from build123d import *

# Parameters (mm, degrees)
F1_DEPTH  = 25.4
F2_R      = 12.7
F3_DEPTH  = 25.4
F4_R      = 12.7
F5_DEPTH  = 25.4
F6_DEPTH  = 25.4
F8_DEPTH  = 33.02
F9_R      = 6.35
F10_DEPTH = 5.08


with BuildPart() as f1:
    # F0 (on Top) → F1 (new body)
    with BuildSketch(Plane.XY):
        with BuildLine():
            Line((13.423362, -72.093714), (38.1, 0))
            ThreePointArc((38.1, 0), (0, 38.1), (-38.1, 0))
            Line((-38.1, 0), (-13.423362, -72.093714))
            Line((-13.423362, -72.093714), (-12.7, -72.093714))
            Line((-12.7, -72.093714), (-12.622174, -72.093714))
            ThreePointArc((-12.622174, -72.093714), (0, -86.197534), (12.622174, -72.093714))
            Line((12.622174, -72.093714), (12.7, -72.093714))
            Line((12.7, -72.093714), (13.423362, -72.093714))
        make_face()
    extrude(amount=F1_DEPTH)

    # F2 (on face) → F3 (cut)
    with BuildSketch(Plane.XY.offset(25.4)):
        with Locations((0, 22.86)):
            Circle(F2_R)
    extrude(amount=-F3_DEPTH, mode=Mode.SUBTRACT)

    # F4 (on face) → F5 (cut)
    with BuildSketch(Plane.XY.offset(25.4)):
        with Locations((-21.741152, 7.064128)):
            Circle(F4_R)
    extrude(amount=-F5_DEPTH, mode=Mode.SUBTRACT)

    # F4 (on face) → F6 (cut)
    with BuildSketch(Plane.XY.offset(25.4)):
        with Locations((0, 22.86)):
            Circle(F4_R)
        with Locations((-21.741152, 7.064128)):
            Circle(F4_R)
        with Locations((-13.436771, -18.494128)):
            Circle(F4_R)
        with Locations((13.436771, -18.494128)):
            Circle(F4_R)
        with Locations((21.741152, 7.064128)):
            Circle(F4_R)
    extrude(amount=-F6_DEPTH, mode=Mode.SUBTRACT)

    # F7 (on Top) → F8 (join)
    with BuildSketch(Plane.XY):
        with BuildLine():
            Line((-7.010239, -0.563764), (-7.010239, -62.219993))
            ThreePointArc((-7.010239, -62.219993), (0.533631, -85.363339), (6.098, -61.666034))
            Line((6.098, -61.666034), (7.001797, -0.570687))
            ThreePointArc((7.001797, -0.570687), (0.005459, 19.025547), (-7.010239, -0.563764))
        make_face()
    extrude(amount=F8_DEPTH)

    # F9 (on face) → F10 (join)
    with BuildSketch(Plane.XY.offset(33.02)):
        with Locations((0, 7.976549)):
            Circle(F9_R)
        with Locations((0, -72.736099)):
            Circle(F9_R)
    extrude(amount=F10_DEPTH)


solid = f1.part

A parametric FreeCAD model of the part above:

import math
import FreeCAD as App
import Part
import Sketcher

V = App.Vector
Q = App.Units.Quantity

doc = App.newDocument("Part")
body = doc.addObject("PartDesign::Body", "Body")

sketch1 = body.newObject("Sketcher::SketchObject", "Sketch")
sketch1.AttachmentSupport = (doc.getObject("XY_Plane"), [""])
sketch1.MapMode = "FlatFace"
sketch1.addGeometry([
    Part.LineSegment(V(13.4, -72.1, 0), V(38.1, 0, 0)),
    Part.ArcOfCircle(Part.Circle(V(0, 0, 0), V(0, 0, 1), 38.1), math.radians(0), math.radians(180)),
    Part.LineSegment(V(-38.1, 0, 0), V(-13.4, -72.1, 0)),
    Part.LineSegment(V(-13.4, -72.1, 0), V(-12.6, -72.1, 0)),
    Part.ArcOfCircle(Part.Circle(V(0, -73.5, 0), V(0, 0, 1), 12.7), math.radians(174), math.radians(366)),
    Part.LineSegment(V(12.6, -72.1, 0), V(13.4, -72.1, 0)),
], False)
sketch1.addConstraint([
    Sketcher.Constraint("Coincident", 0, 2, 1, 1),
    Sketcher.Constraint("Coincident", 1, 2, 2, 1),
    Sketcher.Constraint("Coincident", 2, 2, 3, 1),
    Sketcher.Constraint("Coincident", 3, 2, 4, 1),
    Sketcher.Constraint("Coincident", 4, 2, 5, 1),
    Sketcher.Constraint("Coincident", 5, 2, 0, 1),
    Sketcher.Constraint("Horizontal", 3),
    Sketcher.Constraint("Horizontal", 5),
    Sketcher.Constraint("Coincident", 1, 3, -1, 1),
    Sketcher.Constraint("Symmetric", 3, 2, 4, 2, -2),
    Sketcher.Constraint("PointOnObject", 0, 2, -1),
    Sketcher.Constraint("PointOnObject", 1, 2, -1),
    Sketcher.Constraint("Equal", 3, 5),
    Sketcher.Constraint("Radius", 1, Q("1.5 in")),
    Sketcher.Constraint("Radius", 4, Q("0.5 in")),
    Sketcher.Constraint("Distance", 0, Q("3 in")),
    Sketcher.Constraint("DistanceX", 3, 1, 3, 2, Q("0.801188 mm")),
    Sketcher.Constraint("DistanceX", 2, 2, -1, 1, Q("13.423362 mm")),
])
pad1 = body.newObject("PartDesign::Pad", "Pad")
pad1.Profile = sketch1
pad1.Length = Q("1 in")

sketch2 = body.newObject("Sketcher::SketchObject", "Sketch001")
sketch2.AttachmentSupport = (doc.getObject("XY_Plane"), [""])
sketch2.MapMode = "FlatFace"
sketch2.AttachmentOffset = App.Placement(V(0, 0, 1 * 25.4), App.Rotation())
sketch2.addGeometry(Part.Circle(V(0, 23, 0), V(0, 0, 1), 13), False)
sketch2.addConstraint([
    Sketcher.Constraint("PointOnObject", 0, 3, -2),
    Sketcher.Constraint("Diameter", 0, Q("1 in")),
    Sketcher.Constraint("DistanceY", -1, 1, 0, 3, Q("0.9 in")),
])
pocket1 = body.newObject("PartDesign::Pocket", "Pocket")
pocket1.Profile = sketch2
pocket1.Length = Q("1 in")

sketch3 = body.newObject("Sketcher::SketchObject", "Sketch002")
sketch3.AttachmentSupport = (doc.getObject("XY_Plane"), [""])
sketch3.MapMode = "FlatFace"
sketch3.AttachmentOffset = App.Placement(V(0, 0, 1 * 25.4), App.Rotation())
sketch3.addGeometry(Part.Circle(V(-22, 7, 0), V(0, 0, 1), 13), False)
sketch3.addConstraint([
    Sketcher.Constraint("Diameter", 0, Q("1 in")),
    Sketcher.Constraint("DistanceX", 0, 3, -1, 1, Q("21.741152 mm")),
    Sketcher.Constraint("DistanceY", -1, 1, 0, 3, Q("7.064128 mm")),
])
pocket2 = body.newObject("PartDesign::Pocket", "Pocket001")
pocket2.Profile = sketch3
pocket2.Length = Q("1 in")

sketch4 = body.newObject("Sketcher::SketchObject", "Sketch003")
sketch4.AttachmentSupport = (doc.getObject("XY_Plane"), [""])
sketch4.MapMode = "FlatFace"
sketch4.AttachmentOffset = App.Placement(V(0, 0, 1 * 25.4), App.Rotation())
sketch4.addGeometry([
    Part.Circle(V(0, 23, 0), V(0, 0, 1), 13),
    Part.Circle(V(-22, 7, 0), V(0, 0, 1), 13),
    Part.Circle(V(-13, -18, 0), V(0, 0, 1), 13),
    Part.Circle(V(13, -18, 0), V(0, 0, 1), 13),
    Part.Circle(V(22, 7, 0), V(0, 0, 1), 13),
], False)
sketch4.addConstraint([
    Sketcher.Constraint("Equal", 0, 1),
    Sketcher.Constraint("Equal", 1, 2),
    Sketcher.Constraint("Equal", 2, 3),
    Sketcher.Constraint("Equal", 3, 4),
    Sketcher.Constraint("Symmetric", 2, 3, 3, 3, -2),
    Sketcher.Constraint("Symmetric", 1, 3, 4, 3, -2),
    Sketcher.Constraint("PointOnObject", 0, 3, -2),
    Sketcher.Constraint("Diameter", 0, Q("1 in")),
    Sketcher.Constraint("DistanceY", -1, 1, 0, 3, Q("0.9 in")),
    Sketcher.Constraint("DistanceX", 1, 3, -1, 1, Q("21.741152 mm")),
    Sketcher.Constraint("DistanceY", -1, 1, 1, 3, Q("7.064128 mm")),
    Sketcher.Constraint("DistanceX", 2, 3, -1, 1, Q("13.436771 mm")),
    Sketcher.Constraint("DistanceY", 2, 3, -1, 1, Q("18.494128 mm")),
])
pocket3 = body.newObject("PartDesign::Pocket", "Pocket002")
pocket3.Profile = sketch4
pocket3.Length = Q("1 in")

sketch5 = body.newObject("Sketcher::SketchObject", "Sketch004")
sketch5.AttachmentSupport = (doc.getObject("XY_Plane"), [""])
sketch5.MapMode = "FlatFace"
sketch5.addGeometry([
    Part.LineSegment(V(-7, -1, 0), V(-7, -62, 0)),
    Part.ArcOfCircle(Part.Circle(V(0, -73, 0), V(0, 0, 1), 13), math.radians(124), math.radians(421)),
    Part.LineSegment(V(6, -62, 0), V(7, -1, 0)),
    Part.ArcOfCircle(Part.Circle(V(0, 8, 0), V(0, 0, 1), 11), math.radians(-51), math.radians(231)),
], False)
sketch5.addConstraint([
    Sketcher.Constraint("Coincident", 0, 2, 1, 1),
    Sketcher.Constraint("Coincident", 1, 2, 2, 1),
    Sketcher.Constraint("Coincident", 2, 2, 3, 1),
    Sketcher.Constraint("Coincident", 3, 2, 0, 1),
    Sketcher.Constraint("Vertical", 0),
    Sketcher.Constraint("PointOnObject", 1, 3, -2),
    Sketcher.Constraint("PointOnObject", 3, 3, -2),
    Sketcher.Constraint("Radius", 3, Q("0.435 in")),
    Sketcher.Constraint("Radius", 1, Q("12.63851 mm")),
    Sketcher.Constraint("DistanceY", 0, 2, 0, 1, Q("61.656229 mm")),
    Sketcher.Constraint("DistanceY", 1, 3, -1, 1, Q("72.736099 mm")),
    Sketcher.Constraint("DistanceX", -1, 1, 1, 2, Q("6.098 mm")),
    Sketcher.Constraint("Distance", 2, Q("61.102032 mm")),
    Sketcher.Constraint("DistanceY", -1, 1, 3, 3, Q("7.976549 mm")),
])
pad2 = body.newObject("PartDesign::Pad", "Pad001")
pad2.Profile = sketch5
pad2.Length = Q("1.3 in")

sketch6 = body.newObject("Sketcher::SketchObject", "Sketch005")
sketch6.AttachmentSupport = (doc.getObject("XY_Plane"), [""])
sketch6.MapMode = "FlatFace"
sketch6.AttachmentOffset = App.Placement(V(0, 0, 1.3 * 25.4), App.Rotation())
sketch6.addGeometry([
    Part.Circle(V(0, 8, 0), V(0, 0, 1), 6),
    Part.Circle(V(0, -73, 0), V(0, 0, 1), 6),
], False)
sketch6.addConstraint([
    Sketcher.Constraint("Equal", 0, 1),
    Sketcher.Constraint("PointOnObject", 0, 3, -2),
    Sketcher.Constraint("PointOnObject", 1, 3, -2),
    Sketcher.Constraint("Diameter", 0, Q("0.5 in")),
    Sketcher.Constraint("DistanceY", 1, 3, -1, 1, Q("72.736099 mm")),
    Sketcher.Constraint("DistanceY", -1, 1, 0, 3, Q("7.976549 mm")),
])
pad3 = body.newObject("PartDesign::Pad", "Pad002")
pad3.Profile = sketch6
pad3.Length = Q("0.2 in")

doc.recompute()
